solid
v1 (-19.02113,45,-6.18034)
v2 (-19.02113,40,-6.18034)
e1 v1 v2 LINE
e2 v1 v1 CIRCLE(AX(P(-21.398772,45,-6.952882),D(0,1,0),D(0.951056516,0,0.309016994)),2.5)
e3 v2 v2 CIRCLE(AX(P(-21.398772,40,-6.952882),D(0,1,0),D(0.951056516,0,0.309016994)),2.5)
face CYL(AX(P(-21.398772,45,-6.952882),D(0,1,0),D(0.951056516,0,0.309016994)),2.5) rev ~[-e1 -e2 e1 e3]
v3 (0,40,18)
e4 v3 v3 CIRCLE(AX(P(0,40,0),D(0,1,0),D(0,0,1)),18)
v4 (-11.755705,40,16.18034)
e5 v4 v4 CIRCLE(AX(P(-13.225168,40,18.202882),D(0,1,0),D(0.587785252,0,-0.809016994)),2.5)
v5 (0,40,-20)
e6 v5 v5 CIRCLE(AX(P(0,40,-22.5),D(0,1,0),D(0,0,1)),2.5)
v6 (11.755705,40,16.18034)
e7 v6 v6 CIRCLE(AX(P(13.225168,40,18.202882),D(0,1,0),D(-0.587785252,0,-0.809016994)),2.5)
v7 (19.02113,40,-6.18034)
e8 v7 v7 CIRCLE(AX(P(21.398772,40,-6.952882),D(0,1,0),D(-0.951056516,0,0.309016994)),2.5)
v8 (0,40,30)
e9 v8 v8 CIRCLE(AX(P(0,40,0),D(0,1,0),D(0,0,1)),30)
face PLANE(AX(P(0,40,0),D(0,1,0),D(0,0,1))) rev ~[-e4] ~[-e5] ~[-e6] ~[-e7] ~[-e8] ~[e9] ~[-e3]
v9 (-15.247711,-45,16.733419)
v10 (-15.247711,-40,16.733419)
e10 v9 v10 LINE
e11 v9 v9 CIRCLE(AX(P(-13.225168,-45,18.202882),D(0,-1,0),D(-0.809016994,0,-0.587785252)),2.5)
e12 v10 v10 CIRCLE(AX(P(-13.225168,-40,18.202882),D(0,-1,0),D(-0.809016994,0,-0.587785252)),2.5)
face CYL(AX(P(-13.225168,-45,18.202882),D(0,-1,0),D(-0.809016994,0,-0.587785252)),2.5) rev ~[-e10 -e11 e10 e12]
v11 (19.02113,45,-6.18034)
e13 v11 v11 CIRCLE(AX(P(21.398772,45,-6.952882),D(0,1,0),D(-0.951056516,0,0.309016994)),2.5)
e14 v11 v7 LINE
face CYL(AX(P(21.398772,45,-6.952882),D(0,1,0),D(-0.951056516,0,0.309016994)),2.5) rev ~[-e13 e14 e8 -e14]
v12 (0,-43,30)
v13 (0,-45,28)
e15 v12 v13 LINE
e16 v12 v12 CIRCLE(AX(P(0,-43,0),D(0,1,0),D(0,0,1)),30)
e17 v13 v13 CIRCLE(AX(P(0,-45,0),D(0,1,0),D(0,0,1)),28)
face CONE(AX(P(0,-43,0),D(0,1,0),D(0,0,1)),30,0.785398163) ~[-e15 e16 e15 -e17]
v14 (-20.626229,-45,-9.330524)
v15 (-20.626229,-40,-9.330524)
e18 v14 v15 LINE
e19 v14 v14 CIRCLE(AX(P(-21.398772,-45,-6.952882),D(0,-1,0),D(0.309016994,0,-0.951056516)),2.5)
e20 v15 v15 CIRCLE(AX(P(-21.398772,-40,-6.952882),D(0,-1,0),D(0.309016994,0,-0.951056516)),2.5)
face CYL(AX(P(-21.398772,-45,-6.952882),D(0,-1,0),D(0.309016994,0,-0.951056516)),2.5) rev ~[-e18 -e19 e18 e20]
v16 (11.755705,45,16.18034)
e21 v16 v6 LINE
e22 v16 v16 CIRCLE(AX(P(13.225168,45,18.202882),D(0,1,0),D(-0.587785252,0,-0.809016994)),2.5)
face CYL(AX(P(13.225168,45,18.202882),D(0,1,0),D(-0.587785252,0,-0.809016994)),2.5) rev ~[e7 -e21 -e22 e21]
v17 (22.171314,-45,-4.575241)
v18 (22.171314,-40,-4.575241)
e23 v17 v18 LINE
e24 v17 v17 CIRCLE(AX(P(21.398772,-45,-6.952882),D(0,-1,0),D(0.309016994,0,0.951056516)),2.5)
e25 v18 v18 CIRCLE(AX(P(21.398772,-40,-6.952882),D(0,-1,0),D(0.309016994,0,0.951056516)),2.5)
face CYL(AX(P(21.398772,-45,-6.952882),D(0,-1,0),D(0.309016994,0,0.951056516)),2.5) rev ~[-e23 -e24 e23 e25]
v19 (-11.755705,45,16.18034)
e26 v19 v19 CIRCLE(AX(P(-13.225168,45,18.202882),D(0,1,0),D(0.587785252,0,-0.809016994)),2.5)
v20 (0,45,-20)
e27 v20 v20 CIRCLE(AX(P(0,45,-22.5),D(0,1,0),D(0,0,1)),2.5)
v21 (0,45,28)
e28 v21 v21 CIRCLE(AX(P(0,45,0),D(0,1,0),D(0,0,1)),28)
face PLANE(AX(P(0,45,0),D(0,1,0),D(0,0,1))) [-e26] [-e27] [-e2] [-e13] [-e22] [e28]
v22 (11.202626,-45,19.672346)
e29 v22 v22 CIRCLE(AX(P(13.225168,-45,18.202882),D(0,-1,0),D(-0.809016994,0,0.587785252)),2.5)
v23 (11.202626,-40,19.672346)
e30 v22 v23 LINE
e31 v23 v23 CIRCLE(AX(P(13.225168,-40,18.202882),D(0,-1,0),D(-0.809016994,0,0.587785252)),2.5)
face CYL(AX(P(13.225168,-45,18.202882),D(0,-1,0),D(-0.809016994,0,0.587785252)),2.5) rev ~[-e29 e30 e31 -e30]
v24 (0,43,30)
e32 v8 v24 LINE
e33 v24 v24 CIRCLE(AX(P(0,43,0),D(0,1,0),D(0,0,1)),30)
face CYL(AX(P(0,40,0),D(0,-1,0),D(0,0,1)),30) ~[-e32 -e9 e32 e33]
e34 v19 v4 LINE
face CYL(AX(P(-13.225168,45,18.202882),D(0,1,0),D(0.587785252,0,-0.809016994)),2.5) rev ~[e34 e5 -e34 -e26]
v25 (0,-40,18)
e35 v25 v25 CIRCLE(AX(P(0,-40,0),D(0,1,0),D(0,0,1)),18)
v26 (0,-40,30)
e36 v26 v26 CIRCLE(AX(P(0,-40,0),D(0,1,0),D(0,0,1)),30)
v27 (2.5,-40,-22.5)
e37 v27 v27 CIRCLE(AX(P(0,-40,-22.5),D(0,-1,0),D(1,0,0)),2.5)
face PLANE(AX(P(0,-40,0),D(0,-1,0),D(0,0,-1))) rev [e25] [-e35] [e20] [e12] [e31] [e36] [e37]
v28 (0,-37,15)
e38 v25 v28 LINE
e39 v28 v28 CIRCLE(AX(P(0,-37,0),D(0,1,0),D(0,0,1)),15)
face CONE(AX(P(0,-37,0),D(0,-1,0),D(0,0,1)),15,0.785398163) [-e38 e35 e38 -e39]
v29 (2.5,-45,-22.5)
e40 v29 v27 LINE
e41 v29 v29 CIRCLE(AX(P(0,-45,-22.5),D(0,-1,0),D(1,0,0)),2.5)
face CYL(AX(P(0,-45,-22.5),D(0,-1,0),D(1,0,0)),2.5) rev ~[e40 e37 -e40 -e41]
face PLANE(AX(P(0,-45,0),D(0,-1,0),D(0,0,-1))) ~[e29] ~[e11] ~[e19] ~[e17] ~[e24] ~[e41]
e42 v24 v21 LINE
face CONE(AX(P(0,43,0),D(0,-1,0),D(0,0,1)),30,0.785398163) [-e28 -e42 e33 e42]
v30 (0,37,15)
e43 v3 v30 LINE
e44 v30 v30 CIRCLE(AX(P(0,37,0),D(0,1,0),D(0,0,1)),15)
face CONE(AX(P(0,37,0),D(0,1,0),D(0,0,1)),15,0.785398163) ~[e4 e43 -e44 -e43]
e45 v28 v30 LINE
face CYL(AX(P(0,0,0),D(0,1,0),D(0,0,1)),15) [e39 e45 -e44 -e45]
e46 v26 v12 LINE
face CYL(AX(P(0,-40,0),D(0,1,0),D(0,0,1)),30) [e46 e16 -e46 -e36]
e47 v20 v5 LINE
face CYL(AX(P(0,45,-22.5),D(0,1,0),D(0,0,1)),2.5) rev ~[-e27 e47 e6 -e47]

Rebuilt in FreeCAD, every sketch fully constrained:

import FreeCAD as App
import Part
import Sketcher
Q = App.Units.Quantity


def edges_at(feature, points):
    """Names of the edges that pass closest to the given points."""
    edges = feature.Shape.Edges
    near = lambda p: min(range(len(edges)), key=lambda i: edges[i].distToShape(Part.Vertex(*p))[0])
    return sorted({f"Edge{near(p) + 1}" for p in points})

doc = App.newDocument("Part")
body = doc.addObject("PartDesign::Body", "Body")

# Sketch on XZ plane
sketch1 = doc.addObject("Sketcher::SketchObject", "Sketch")
body.addObject(sketch1)
sketch1.AttachmentSupport = (doc.XZ_Plane, [""])
sketch1.MapMode = "FlatFace"
sketch1.addGeometry(Part.Circle(App.Vector(0, 0, 0), App.Vector(0, 0, 1), 15), False)
sketch1.addConstraint([
    Sketcher.Constraint("Coincident", 0, 3, -1, 1),
    Sketcher.Constraint("Diameter", 0, Q("30 mm")),
])
pad1 = doc.addObject("PartDesign::Pad", "Pad")
body.addObject(pad1)
pad1.Profile = sketch1
pad1.Length = 80
pad1.Midplane = True

# Sketch on XZ plane
sketch2 = doc.addObject("Sketcher::SketchObject", "Sketch001")
body.addObject(sketch2)
sketch2.AttachmentSupport = (doc.XZ_Plane, [""])
sketch2.MapMode = "FlatFace"
sketch2.AttachmentOffset = App.Placement(App.Vector(0, 0, -40), App.Rotation())
sketch2.addGeometry(Part.Circle(App.Vector(0, 0, 0), App.Vector(0, 0, 1), 30), False)
sketch2.addConstraint([
    Sketcher.Constraint("Coincident", 0, 3, -1, 1),
    Sketcher.Constraint("Diameter", 0, Q("60 mm")),
])
pad2 = doc.addObject("PartDesign::Pad", "Pad001")
body.addObject(pad2)
pad2.Profile = sketch2
pad2.Length = 5
pad2.Reversed = True
doc.recompute()

chamfer = doc.addObject("PartDesign::Chamfer", "Chamfer")
body.addObject(chamfer)
chamfer.Base = (pad2, edges_at(pad2, [(0, 45, -30)]))
chamfer.Size = 2

# Sketch on XZ plane
sketch3 = doc.addObject("Sketcher::SketchObject", "Sketch002")
body.addObject(sketch3)
sketch3.AttachmentSupport = (doc.XZ_Plane, [""])
sketch3.MapMode = "FlatFace"
sketch3.AttachmentOffset = App.Placement(App.Vector(0, 0, -45), App.Rotation())
sketch3.addGeometry(Part.Circle(App.Vector(0, -22.5, 0), App.Vector(0, 0, 1), 2.5), False)
sketch3.addConstraint([
    Sketcher.Constraint("PointOnObject", 0, 3, -2),
    Sketcher.Constraint("Diameter", 0, Q("5 mm")),
    Sketcher.Constraint("DistanceY", 0, 3, -1, 1, Q("22.5 mm")),
])
pocket1 = doc.addObject("PartDesign::Pocket", "Pocket")
body.addObject(pocket1)
pocket1.Profile = sketch3
pocket1.Type = "ThroughAll"
pocket1.Reversed = True
doc.recompute()

polarpattern = doc.addObject("PartDesign::PolarPattern", "PolarPattern")
body.addObject(polarpattern)
polarpattern.Originals = [pocket1]
polarpattern.Axis = (doc.Y_Axis, [""])
polarpattern.Angle = 360
polarpattern.Occurrences = 5
body.Tip = polarpattern
doc.recompute()

chamfer2 = doc.addObject("PartDesign::Chamfer", "Chamfer001")
body.addObject(chamfer2)
chamfer2.Base = (polarpattern, edges_at(polarpattern, [(0, 40, -15)]))
chamfer2.Size = 3
doc.recompute()

mirrored = doc.addObject("PartDesign::Mirrored", "Mirrored")
body.addObject(mirrored)
mirrored.Originals = [pad2]
mirrored.MirrorPlane = (doc.XZ_Plane, [""])
body.Tip = mirrored

# Sketch on XZ plane
sketch4 = doc.addObject("Sketcher::SketchObject", "Sketch003")
body.addObject(sketch4)
sketch4.AttachmentSupport = (doc.XZ_Plane, [""])
sketch4.MapMode = "FlatFace"
sketch4.AttachmentOffset = App.Placement(App.Vector(0, 0, 45), App.Rotation())
sketch4.addGeometry(Part.Circle(App.Vector(-21.4, -7, 0), App.Vector(0, 0, 1), 2.5), False)
sketch4.addConstraint([
    Sketcher.Constraint("Diameter", 0, Q("5 mm")),
    Sketcher.Constraint("DistanceX", 0, 3, -1, 1, Q("21.398772 mm")),
    Sketcher.Constraint("DistanceY", 0, 3, -1, 1, Q("6.952882 mm")),
])
pocket2 = doc.addObject("PartDesign::Pocket", "Pocket001")
body.addObject(pocket2)
pocket2.Profile = sketch4
pocket2.Type = "ThroughAll"

# Sketch on XZ plane
sketch5 = doc.addObject("Sketcher::SketchObject", "Sketch004")
body.addObject(sketch5)
sketch5.AttachmentSupport = (doc.XZ_Plane, [""])
sketch5.MapMode = "FlatFace"
sketch5.AttachmentOffset = App.Placement(App.Vector(0, 0, 45), App.Rotation())
sketch5.addGeometry(Part.Circle(App.Vector(-13.2, 18.2, 0), App.Vector(0, 0, 1), 2.5), False)
sketch5.addConstraint([
    Sketcher.Constraint("Diameter", 0, Q("5 mm")),
    Sketcher.Constraint("DistanceX", 0, 3, -1, 1, Q("13.225168 mm")),
    Sketcher.Constraint("DistanceY", -1, 1, 0, 3, Q("18.202882 mm")),
])
pocket3 = doc.addObject("PartDesign::Pocket", "Pocket002")
body.addObject(pocket3)
pocket3.Profile = sketch5
pocket3.Type = "ThroughAll"

# Sketch on XZ plane
sketch6 = doc.addObject("Sketcher::SketchObject", "Sketch005")
body.addObject(sketch6)
sketch6.AttachmentSupport = (doc.XZ_Plane, [""])
sketch6.MapMode = "FlatFace"
sketch6.AttachmentOffset = App.Placement(App.Vector(0, 0, 45), App.Rotation())
sketch6.addGeometry(Part.Circle(App.Vector(13.2, 18.2, 0), App.Vector(0, 0, 1), 2.5), False)
sketch6.addConstraint([
    Sketcher.Constraint("Diameter", 0, Q("5 mm")),
    Sketcher.Constraint("DistanceX", -1, 1, 0, 3, Q("13.225168 mm")),
    Sketcher.Constraint("DistanceY", -1, 1, 0, 3, Q("18.202882 mm")),
])
pocket4 = doc.addObject("PartDesign::Pocket", "Pocket003")
body.addObject(pocket4)
pocket4.Profile = sketch6
pocket4.Type = "ThroughAll"

# Sketch on XZ plane
sketch7 = doc.addObject("Sketcher::SketchObject", "Sketch006")
body.addObject(sketch7)
sketch7.AttachmentSupport = (doc.XZ_Plane, [""])
sketch7.MapMode = "FlatFace"
sketch7.AttachmentOffset = App.Placement(App.Vector(0, 0, 45), App.Rotation())
sketch7.addGeometry(Part.Circle(App.Vector(21.4, -7, 0), App.Vector(0, 0, 1), 2.5), False)
sketch7.addConstraint([
    Sketcher.Constraint("Diameter", 0, Q("5 mm")),
    Sketcher.Constraint("DistanceX", -1, 1, 0, 3, Q("21.398772 mm")),
    Sketcher.Constraint("DistanceY", 0, 3, -1, 1, Q("6.952882 mm")),
])
pocket5 = doc.addObject("PartDesign::Pocket", "Pocket004")
body.addObject(pocket5)
pocket5.Profile = sketch7
pocket5.Type = "ThroughAll"

# Sketch on XZ plane
sketch8 = doc.addObject("Sketcher::SketchObject", "Sketch007")
body.addObject(sketch8)
sketch8.AttachmentSupport = (doc.XZ_Plane, [""])
sketch8.MapMode = "FlatFace"
sketch8.AttachmentOffset = App.Placement(App.Vector(0, 0, 45), App.Rotation())
sketch8.addGeometry(Part.Circle(App.Vector(0, -22.5, 0), App.Vector(0, 0, 1), 2.5), False)
sketch8.addConstraint([
    Sketcher.Constraint("PointOnObject", 0, 3, -2),
    Sketcher.Constraint("Diameter", 0, Q("5 mm")),
    Sketcher.Constraint("DistanceY", 0, 3, -1, 1, Q("22.5 mm")),
])
pocket6 = doc.addObject("PartDesign::Pocket", "Pocket005")
body.addObject(pocket6)
pocket6.Profile = sketch8
pocket6.Type = "ThroughAll"
doc.recompute()

chamfer3 = doc.addObject("PartDesign::Chamfer", "Chamfer002")
body.addObject(chamfer3)
chamfer3.Base = (pocket6, edges_at(pocket6, [(0, -45, -30)]))
chamfer3.Size = 2
doc.recompute()

chamfer4 = doc.addObject("PartDesign::Chamfer", "Chamfer003")
body.addObject(chamfer4)
chamfer4.Base = (chamfer3, edges_at(chamfer3, [(0, -40, -15)]))
chamfer4.Size = 3

doc.recompute()
